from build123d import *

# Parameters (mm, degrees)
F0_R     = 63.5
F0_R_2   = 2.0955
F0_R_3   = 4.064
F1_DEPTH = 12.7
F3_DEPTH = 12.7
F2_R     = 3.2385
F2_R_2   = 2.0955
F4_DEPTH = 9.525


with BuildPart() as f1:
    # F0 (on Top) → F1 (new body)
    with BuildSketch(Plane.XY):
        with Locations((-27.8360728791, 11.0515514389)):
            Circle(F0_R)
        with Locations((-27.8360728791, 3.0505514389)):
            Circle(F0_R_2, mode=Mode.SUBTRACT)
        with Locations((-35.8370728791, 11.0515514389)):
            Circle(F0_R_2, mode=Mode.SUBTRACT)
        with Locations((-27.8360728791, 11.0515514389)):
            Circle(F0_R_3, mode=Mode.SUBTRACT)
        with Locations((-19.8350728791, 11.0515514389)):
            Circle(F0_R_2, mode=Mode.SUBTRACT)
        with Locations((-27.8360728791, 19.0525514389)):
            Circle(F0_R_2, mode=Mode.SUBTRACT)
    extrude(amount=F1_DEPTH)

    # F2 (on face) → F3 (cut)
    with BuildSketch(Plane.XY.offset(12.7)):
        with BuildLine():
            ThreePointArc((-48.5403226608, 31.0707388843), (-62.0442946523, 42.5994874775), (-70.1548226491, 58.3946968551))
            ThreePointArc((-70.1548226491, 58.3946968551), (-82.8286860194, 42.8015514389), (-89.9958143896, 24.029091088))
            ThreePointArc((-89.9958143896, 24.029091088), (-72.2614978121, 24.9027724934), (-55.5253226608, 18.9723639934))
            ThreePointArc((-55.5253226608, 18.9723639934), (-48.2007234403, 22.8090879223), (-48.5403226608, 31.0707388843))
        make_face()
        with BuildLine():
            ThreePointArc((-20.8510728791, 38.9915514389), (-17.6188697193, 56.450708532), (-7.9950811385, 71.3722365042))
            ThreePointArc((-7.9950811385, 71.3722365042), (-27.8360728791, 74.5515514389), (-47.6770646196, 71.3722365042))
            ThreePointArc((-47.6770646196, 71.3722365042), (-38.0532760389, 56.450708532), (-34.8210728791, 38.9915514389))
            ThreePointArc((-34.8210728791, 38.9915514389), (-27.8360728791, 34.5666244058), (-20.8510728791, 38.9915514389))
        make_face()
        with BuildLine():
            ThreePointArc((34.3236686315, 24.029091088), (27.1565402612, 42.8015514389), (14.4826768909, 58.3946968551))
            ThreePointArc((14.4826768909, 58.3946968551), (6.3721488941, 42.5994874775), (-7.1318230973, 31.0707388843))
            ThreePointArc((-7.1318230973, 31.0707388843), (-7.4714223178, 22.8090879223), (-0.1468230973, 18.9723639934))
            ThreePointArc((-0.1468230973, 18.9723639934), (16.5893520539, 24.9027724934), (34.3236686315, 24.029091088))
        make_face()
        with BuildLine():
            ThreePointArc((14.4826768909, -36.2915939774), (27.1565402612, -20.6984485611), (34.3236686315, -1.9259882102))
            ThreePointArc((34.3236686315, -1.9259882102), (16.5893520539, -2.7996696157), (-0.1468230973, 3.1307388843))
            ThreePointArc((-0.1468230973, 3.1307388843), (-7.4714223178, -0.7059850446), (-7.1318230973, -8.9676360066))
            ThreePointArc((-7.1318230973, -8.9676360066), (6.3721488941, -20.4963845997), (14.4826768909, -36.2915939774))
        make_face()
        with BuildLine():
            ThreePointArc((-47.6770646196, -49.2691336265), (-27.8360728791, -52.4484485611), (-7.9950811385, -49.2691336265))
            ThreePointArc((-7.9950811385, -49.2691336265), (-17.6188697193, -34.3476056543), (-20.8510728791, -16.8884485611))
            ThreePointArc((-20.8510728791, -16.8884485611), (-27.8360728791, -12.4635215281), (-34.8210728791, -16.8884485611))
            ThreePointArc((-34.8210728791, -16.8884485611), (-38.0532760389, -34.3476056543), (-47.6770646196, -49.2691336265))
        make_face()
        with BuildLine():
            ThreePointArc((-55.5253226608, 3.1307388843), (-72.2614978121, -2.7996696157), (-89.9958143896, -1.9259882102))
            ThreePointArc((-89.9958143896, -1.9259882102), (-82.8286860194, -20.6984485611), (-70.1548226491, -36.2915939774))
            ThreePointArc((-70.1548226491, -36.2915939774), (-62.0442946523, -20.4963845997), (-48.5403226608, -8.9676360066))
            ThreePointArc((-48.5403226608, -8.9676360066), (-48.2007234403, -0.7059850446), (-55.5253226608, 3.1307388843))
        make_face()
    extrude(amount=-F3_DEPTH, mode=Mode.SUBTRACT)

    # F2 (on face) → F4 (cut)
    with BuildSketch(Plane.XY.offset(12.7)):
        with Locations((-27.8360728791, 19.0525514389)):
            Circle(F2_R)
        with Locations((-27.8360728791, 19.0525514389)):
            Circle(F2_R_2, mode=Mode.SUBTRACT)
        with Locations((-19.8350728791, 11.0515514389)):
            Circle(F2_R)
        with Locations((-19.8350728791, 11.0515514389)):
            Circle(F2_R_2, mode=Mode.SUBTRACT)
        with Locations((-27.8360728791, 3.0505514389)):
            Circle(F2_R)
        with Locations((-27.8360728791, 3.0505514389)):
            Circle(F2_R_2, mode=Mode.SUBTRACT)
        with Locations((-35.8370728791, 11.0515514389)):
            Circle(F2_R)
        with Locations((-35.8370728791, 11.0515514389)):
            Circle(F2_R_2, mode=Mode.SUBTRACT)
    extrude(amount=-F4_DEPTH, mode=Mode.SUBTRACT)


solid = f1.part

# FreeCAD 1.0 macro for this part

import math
import FreeCAD as App
import Part
import Sketcher
from FreeCAD import Vector
Q = App.Units.Quantity

doc = App.newDocument("Part")
body = doc.addObject("PartDesign::Body", "Body")

# Sketch on XY plane
sketch1 = doc.addObject("Sketcher::SketchObject", "Sketch")
body.addObject(sketch1)
sketch1.AttachmentSupport = (doc.XY_Plane, [""])
sketch1.MapMode = "FlatFace"
sketch1.addGeometry(Part.Circle(Vector(-27.8, 11.1, 0), Vector(0, 0, 1), 63.5), False)
sketch1.addGeometry(Part.Circle(Vector(-27.8, 3.1, 0), Vector(0, 0, 1), 2.1), False)
sketch1.addGeometry(Part.Circle(Vector(-35.8, 11.1, 0), Vector(0, 0, 1), 2.1), False)
sketch1.addGeometry(Part.Circle(Vector(-27.8, 11.1, 0), Vector(0, 0, 1), 4.1), False)
sketch1.addGeometry(Part.Circle(Vector(-27.8, 19.1, 0), Vector(0, 0, 1), 2.1), False)
sketch1.addGeometry(Part.Circle(Vector(-19.8, 11.1, 0), Vector(0, 0, 1), 2.1), False)
sketch1.addConstraint(Sketcher.Constraint("Coincident", 3, 3, 0, 3))
sketch1.addConstraint(Sketcher.Constraint("Equal", 1, 2))
sketch1.addConstraint(Sketcher.Constraint("Equal", 2, 4))
sketch1.addConstraint(Sketcher.Constraint("Equal", 4, 5))
sketch1.addConstraint(Sketcher.Constraint("Horizontal", 0, 3, 2, 3))
sketch1.addConstraint(Sketcher.Constraint("Horizontal", 3, 3, 5, 3))
sketch1.addConstraint(Sketcher.Constraint("Vertical", 0, 3, 1, 3))
sketch1.addConstraint(Sketcher.Constraint("Vertical", 3, 3, 4, 3))
sketch1.addConstraint(Sketcher.Constraint("Diameter", 0, Q("5 in")))
sketch1.addConstraint(Sketcher.Constraint("Diameter", 3, Q("0.32 in")))
sketch1.addConstraint(Sketcher.Constraint("Diameter", 1, Q("0.165 in")))
sketch1.addConstraint(Sketcher.Constraint("DistanceY", 1, 3, 4, 3, Q("0.63 in")))
sketch1.addConstraint(Sketcher.Constraint("DistanceX", 2, 3, 5, 3, Q("0.63 in")))
sketch1.addConstraint(Sketcher.Constraint("DistanceY", 1, 3, 0, 3, Q("0.315 in")))
sketch1.addConstraint(Sketcher.Constraint("DistanceX", 2, 3, 0, 3, Q("0.315 in")))
sketch1.addConstraint(Sketcher.Constraint("DistanceY", -1, 1, 0, 3, Q("11.051551 mm")))
sketch1.addConstraint(Sketcher.Constraint("DistanceX", 0, 3, -1, 1, Q("27.836073 mm")))
pad1 = doc.addObject("PartDesign::Pad", "Pad")
body.addObject(pad1)
pad1.Profile = sketch1
pad1.Length = Q("0.5 in")

# Sketch on XY plane
sketch2 = doc.addObject("Sketcher::SketchObject", "Sketch001")
body.addObject(sketch2)
sketch2.AttachmentSupport = (doc.XY_Plane, [""])
sketch2.MapMode = "FlatFace"
sketch2.AttachmentOffset = App.Placement(Vector(0, 0, 0.5 * 25.4), App.Rotation())
sketch2.addGeometry(Part.ArcOfCircle(Part.Circle(Vector(-26, 71, 0), Vector(0, 0, 1), 46), math.radians(-164), math.radians(-119)), False)
sketch2.addGeometry(Part.ArcOfCircle(Part.Circle(Vector(-28, 11, 0), Vector(0, 0, 1), 64), math.radians(132), math.radians(168)), False)
sketch2.addGeometry(Part.ArcOfCircle(Part.Circle(Vector(-79, -20, 0), Vector(0, 0, 1), 46), math.radians(59), math.radians(104)), False)
sketch2.addGeometry(Part.ArcOfCircle(Part.Circle(Vector(-55, 27, 0), Vector(0, 0, 1), 8), math.radians(-95), math.radians(35)), False)
sketch2.addGeometry(Part.ArcOfCircle(Part.Circle(Vector(25, 40, 0), Vector(0, 0, 1), 46), math.radians(136), math.radians(181)), False)
sketch2.addGeometry(Part.ArcOfCircle(Part.Circle(Vector(-28, 11, 0), Vector(0, 0, 1), 63), math.radians(72), math.radians(108)), False)
sketch2.addGeometry(Part.ArcOfCircle(Part.Circle(Vector(-81, 40, 0), Vector(0, 0, 1), 46), math.radians(-1), math.radians(44)), False)
sketch2.addGeometry(Part.ArcOfCircle(Part.Circle(Vector(-28, 42, 0), Vector(0, 0, 1), 8), math.radians(-155), math.radians(-25)), False)
sketch2.addGeometry(Part.ArcOfCircle(Part.Circle(Vector(-28, 11, 0), Vector(0, 0, 1), 64), math.radians(12), math.radians(48)), False)
sketch2.addGeometry(Part.ArcOfCircle(Part.Circle(Vector(-30, 71, 0), Vector(0, 0, 1), 46), math.radians(-61), math.radians(-16)), False)
sketch2.addGeometry(Part.ArcOfCircle(Part.Circle(Vector(-1, 27, 0), Vector(0, 0, 1), 8), math.radians(145), math.radians(275)), False)
sketch2.addGeometry(Part.ArcOfCircle(Part.Circle(Vector(23, -20, 0), Vector(0, 0, 1), 46), math.radians(76), math.radians(121)), False)
sketch2.addGeometry(Part.ArcOfCircle(Part.Circle(Vector(-28, 11, 0), Vector(0, 0, 1), 64), math.radians(-48), math.radians(-12)), False)
sketch2.addGeometry(Part.ArcOfCircle(Part.Circle(Vector(23, 43, 0), Vector(0, 0, 1), 46), math.radians(-121), math.radians(-76)), False)
sketch2.addGeometry(Part.ArcOfCircle(Part.Circle(Vector(-1, -5, 0), Vector(0, 0, 1), 8), math.radians(85), math.radians(215)), False)
sketch2.addGeometry(Part.ArcOfCircle(Part.Circle(Vector(-30, -49, 0), Vector(0, 0, 1), 46), math.radians(16), math.radians(61)), False)
sketch2.addGeometry(Part.ArcOfCircle(Part.Circle(Vector(-28, 11, 0), Vector(0, 0, 1), 64), math.radians(-108), math.radians(-72)), False)
sketch2.addGeometry(Part.ArcOfCircle(Part.Circle(Vector(25, -17, 0), Vector(0, 0, 1), 46), math.radians(179), math.radians(224)), False)
sketch2.addGeometry(Part.ArcOfCircle(Part.Circle(Vector(-28, -20, 0), Vector(0, 0, 1), 8), math.radians(25), math.radians(155)), False)
sketch2.addGeometry(Part.ArcOfCircle(Part.Circle(Vector(-81, -17, 0), Vector(0, 0, 1), 46), math.radians(-44), math.radians(1)), False)
sketch2.addGeometry(Part.ArcOfCircle(Part.Circle(Vector(-79, 43, 0), Vector(0, 0, 1), 46), math.radians(-104), math.radians(-59)), False)
sketch2.addGeometry(Part.ArcOfCircle(Part.Circle(Vector(-28, 11, 0), Vector(0, 0, 1), 64), math.radians(-168), math.radians(-132)), False)
sketch2.addGeometry(Part.ArcOfCircle(Part.Circle(Vector(-26, -49, 0), Vector(0, 0, 1), 46), math.radians(119), math.radians(164)), False)
sketch2.addGeometry(Part.ArcOfCircle(Part.Circle(Vector(-55, -5, 0), Vector(0, 0, 1), 8), math.radians(-35), math.radians(95)), False)
sketch2.addConstraint(Sketcher.Constraint("Coincident", 0, 1, 1, 1))
sketch2.addConstraint(Sketcher.Constraint("Coincident", 1, 2, 2, 2))
sketch2.addConstraint(Sketcher.Constraint("Coincident", 2, 1, 3, 1))
sketch2.addConstraint(Sketcher.Constraint("Coincident", 3, 2, 0, 2))
sketch2.addConstraint(Sketcher.Constraint("Coincident", 4, 1, 5, 1))
sketch2.addConstraint(Sketcher.Constraint("Coincident", 5, 2, 6, 2))
sketch2.addConstraint(Sketcher.Constraint("Coincident", 6, 1, 7, 1))
sketch2.addConstraint(Sketcher.Constraint("Coincident", 7, 2, 4, 2))
sketch2.addConstraint(Sketcher.Constraint("Coincident", 8, 2, 9, 2))
sketch2.addConstraint(Sketcher.Constraint("Coincident", 9, 1, 10, 1))
sketch2.addConstraint(Sketcher.Constraint("Coincident", 10, 2, 11, 2))
sketch2.addConstraint(Sketcher.Constraint("Coincident", 11, 1, 8, 1))
sketch2.addConstraint(Sketcher.Constraint("Coincident", 12, 2, 13, 2))
sketch2.addConstraint(Sketcher.Constraint("Coincident", 13, 1, 14, 1))
sketch2.addConstraint(Sketcher.Constraint("Coincident", 14, 2, 15, 2))
sketch2.addConstraint(Sketcher.Constraint("Coincident", 15, 1, 12, 1))
sketch2.addConstraint(Sketcher.Constraint("Coincident", 16, 2, 17, 2))
sketch2.addConstraint(Sketcher.Constraint("Coincident", 17, 1, 18, 1))
sketch2.addConstraint(Sketcher.Constraint("Coincident", 18, 2, 19, 2))
sketch2.addConstraint(Sketcher.Constraint("Coincident", 19, 1, 16, 1))
sketch2.addConstraint(Sketcher.Constraint("Coincident", 20, 1, 21, 1))
sketch2.addConstraint(Sketcher.Constraint("Coincident", 21, 2, 22, 2))
sketch2.addConstraint(Sketcher.Constraint("Coincident", 22, 1, 23, 1))
sketch2.addConstraint(Sketcher.Constraint("Coincident", 23, 2, 20, 2))
sketch2.addConstraint(Sketcher.Constraint("Coincident", 5, 3, 1, 3))
sketch2.addConstraint(Sketcher.Constraint("Coincident", 8, 3, 1, 3))
sketch2.addConstraint(Sketcher.Constraint("Coincident", 12, 3, 1, 3))
sketch2.addConstraint(Sketcher.Constraint("Coincident", 16, 3, 1, 3))
sketch2.addConstraint(Sketcher.Constraint("Coincident", 21, 3, 1, 3))
sketch2.addConstraint(Sketcher.Constraint("Equal", 0, 2))
sketch2.addConstraint(Sketcher.Constraint("Equal", 2, 4))
sketch2.addConstraint(Sketcher.Constraint("Equal", 1, 5))
sketch2.addConstraint(Sketcher.Constraint("Equal", 4, 6))
sketch2.addConstraint(Sketcher.Constraint("Equal", 3, 7))
sketch2.addConstraint(Sketcher.Constraint("Equal", 5, 8))
sketch2.addConstraint(Sketcher.Constraint("Equal", 6, 9))
sketch2.addConstraint(Sketcher.Constraint("Equal", 7, 10))
sketch2.addConstraint(Sketcher.Constraint("Equal", 9, 11))
sketch2.addConstraint(Sketcher.Constraint("Equal", 8, 12))
sketch2.addConstraint(Sketcher.Constraint("Equal", 11, 13))
sketch2.addConstraint(Sketcher.Constraint("Equal", 10, 14))
sketch2.addConstraint(Sketcher.Constraint("Equal", 13, 15))
sketch2.addConstraint(Sketcher.Constraint("Equal", 12, 16))
sketch2.addConstraint(Sketcher.Constraint("Equal", 15, 17))
sketch2.addConstraint(Sketcher.Constraint("Equal", 14, 18))
sketch2.addConstraint(Sketcher.Constraint("Equal", 17, 19))
sketch2.addConstraint(Sketcher.Constraint("Equal", 19, 20))
sketch2.addConstraint(Sketcher.Constraint("Equal", 16, 21))
sketch2.addConstraint(Sketcher.Constraint("Equal", 20, 22))
sketch2.addConstraint(Sketcher.Constraint("Equal", 18, 23))
sketch2.addConstraint(Sketcher.Constraint("Horizontal", 4, 3, 6, 3))
sketch2.addConstraint(Sketcher.Constraint("Horizontal", 0, 3, 9, 3))
sketch2.addConstraint(Sketcher.Constraint("Horizontal", 3, 3, 10, 3))
sketch2.addConstraint(Sketcher.Constraint("Horizontal", 2, 3, 11, 3))
sketch2.addConstraint(Sketcher.Constraint("Horizontal", 17, 3, 19, 3))
sketch2.addConstraint(Sketcher.Constraint("Horizontal", 13, 3, 20, 3))
sketch2.addConstraint(Sketcher.Constraint("Horizontal", 15, 3, 22, 3))
sketch2.addConstraint(Sketcher.Constraint("Horizontal", 14, 3, 23, 3))
sketch2.addConstraint(Sketcher.Constraint("Horizontal", 4, 1, 5, 2))
sketch2.addConstraint(Sketcher.Constraint("Horizontal", 6, 1, 7, 2))
sketch2.addConstraint(Sketcher.Constraint("Horizontal", 0, 1, 8, 2))
sketch2.addConstraint(Sketcher.Constraint("Horizontal", 3, 2, 9, 1))
sketch2.addConstraint(Sketcher.Constraint("Horizontal", 2, 1, 10, 2))
sketch2.addConstraint(Sketcher.Constraint("Horizontal", 17, 1, 18, 2))
sketch2.addConstraint(Sketcher.Constraint("Horizontal", 16, 2, 19, 1))
sketch2.addConstraint(Sketcher.Constraint("Horizontal", 12, 2, 20, 1))
sketch2.addConstraint(Sketcher.Constraint("Horizontal", 15, 1, 21, 2))
sketch2.addConstraint(Sketcher.Constraint("Horizontal", 14, 2, 22, 1))
sketch2.addConstraint(Sketcher.Constraint("Vertical", 11, 3, 13, 3))
sketch2.addConstraint(Sketcher.Constraint("Vertical", 10, 3, 14, 3))
sketch2.addConstraint(Sketcher.Constraint("Vertical", 9, 3, 15, 3))
sketch2.addConstraint(Sketcher.Constraint("Vertical", 4, 3, 17, 3))
sketch2.addConstraint(Sketcher.Constraint("Vertical", 11, 1, 12, 2))
sketch2.addConstraint(Sketcher.Constraint("Vertical", 10, 2, 13, 1))
sketch2.addConstraint(Sketcher.Constraint("Vertical", 9, 1, 14, 2))
sketch2.addConstraint(Sketcher.Constraint("Vertical", 4, 1, 16, 2))
sketch2.addConstraint(Sketcher.Constraint("Vertical", 7, 2, 17, 1))
sketch2.addConstraint(Sketcher.Constraint("Radius", 1, Q("2.5 in")))
sketch2.addConstraint(Sketcher.Constraint("DistanceY", 12, 3, 6, 1, Q("1.1 in")))
sketch2.addConstraint(Sketcher.Constraint("DistanceY", 13, 1, 9, 1, Q("1.1 in")))
sketch2.addConstraint(Sketcher.Constraint("Radius", 0, Q("45.8446 mm")))
sketch2.addConstraint(Sketcher.Constraint("DistanceX", 6, 1, 7, 2, Q("0.55 in")))
sketch2.addConstraint(Sketcher.Constraint("DistanceX", 2, 1, 3, 2, Q("0.275 in")))
sketch2.addConstraint(Sketcher.Constraint("Radius", 3, Q("7.725574 mm")))
sketch2.addConstraint(Sketcher.Constraint("DistanceY", -1, 1, 7, 3, Q("42.292199 mm")))
sketch2.addConstraint(Sketcher.Constraint("DistanceY", 2, 3, 0, 3, Q("91.497998 mm")))
sketch2.addConstraint(Sketcher.Constraint("DistanceX", 6, 3, 3, 3, Q("25.7712 mm")))
sketch2.addConstraint(Sketcher.Constraint("DistanceY", 17, 3, 10, 3, Q("44.102501 mm")))
sketch2.addConstraint(Sketcher.Constraint("DistanceY", 7, 3, 0, 1, Q("16.102498 mm")))
sketch2.addConstraint(Sketcher.Constraint("DistanceX", 9, 3, 4, 1, Q("21.5879 mm")))
sketch2.addConstraint(Sketcher.Constraint("DistanceX", 2, 3, -1, 1, Q("78.915559 mm")))
pocket1 = doc.addObject("PartDesign::Pocket", "Pocket")
body.addObject(pocket1)
pocket1.Profile = sketch2
pocket1.Length = Q("0.5 in")

# Sketch on XY plane
sketch3 = doc.addObject("Sketcher::SketchObject", "Sketch002")
body.addObject(sketch3)
sketch3.AttachmentSupport = (doc.XY_Plane, [""])
sketch3.MapMode = "FlatFace"
sketch3.AttachmentOffset = App.Placement(Vector(0, 0, 0.5 * 25.4), App.Rotation())
sketch3.addGeometry(Part.Circle(Vector(-27.8, 19.1, 0), Vector(0, 0, 1), 3.2), False)
sketch3.addGeometry(Part.Circle(Vector(-27.8, 19.1, 0), Vector(0, 0, 1), 2.1), False)
sketch3.addGeometry(Part.Circle(Vector(-19.8, 11.1, 0), Vector(0, 0, 1), 3.2), False)
sketch3.addGeometry(Part.Circle(Vector(-19.8, 11.1, 0), Vector(0, 0, 1), 2.1), False)
sketch3.addGeometry(Part.Circle(Vector(-27.8, 3.1, 0), Vector(0, 0, 1), 3.2), False)
sketch3.addGeometry(Part.Circle(Vector(-27.8, 3.1, 0), Vector(0, 0, 1), 2.1), False)
sketch3.addGeometry(Part.Circle(Vector(-35.8, 11.1, 0), Vector(0, 0, 1), 3.2), False)
sketch3.addGeometry(Part.Circle(Vector(-35.8, 11.1, 0), Vector(0, 0, 1), 2.1), False)
sketch3.addConstraint(Sketcher.Constraint("Coincident", 1, 3, 0, 3))
sketch3.addConstraint(Sketcher.Constraint("Coincident", 3, 3, 2, 3))
sketch3.addConstraint(Sketcher.Constraint("Coincident", 5, 3, 4, 3))
sketch3.addConstraint(Sketcher.Constraint("Coincident", 7, 3, 6, 3))
sketch3.addConstraint(Sketcher.Constraint("Equal", 0, 2))
sketch3.addConstraint(Sketcher.Constraint("Equal", 1, 3))
sketch3.addConstraint(Sketcher.Constraint("Equal", 2, 4))
sketch3.addConstraint(Sketcher.Constraint("Equal", 3, 5))
sketch3.addConstraint(Sketcher.Constraint("Equal", 4, 6))
sketch3.addConstraint(Sketcher.Constraint("Equal", 5, 7))
sketch3.addConstraint(Sketcher.Constraint("Horizontal", 3, 3, 6, 3))
sketch3.addConstraint(Sketcher.Constraint("Vertical", 1, 3, 4, 3))
sketch3.addConstraint(Sketcher.Constraint("Diameter", 0, Q("0.255 in")))
sketch3.addConstraint(Sketcher.Constraint("Diameter", 1, Q("0.165 in")))
sketch3.addConstraint(Sketcher.Constraint("DistanceY", 4, 3, 0, 3, Q("0.63 in")))
sketch3.addConstraint(Sketcher.Constraint("DistanceX", 6, 3, 2, 3, Q("0.63 in")))
sketch3.addConstraint(Sketcher.Constraint("DistanceX", 0, 3, 2, 3, Q("0.315 in")))
sketch3.addConstraint(Sketcher.Constraint("DistanceY", 2, 3, 0, 3, Q("0.315 in")))
sketch3.addConstraint(Sketcher.Constraint("DistanceY", -1, 1, 0, 3, Q("19.052551 mm")))
sketch3.addConstraint(Sketcher.Constraint("DistanceX", 0, 3, -1, 1, Q("27.836073 mm")))
pocket2 = doc.addObject("PartDesign::Pocket", "Pocket001")
body.addObject(pocket2)
pocket2.Profile = sketch3
pocket2.Length = Q("0.375 in")

doc.recompute()
